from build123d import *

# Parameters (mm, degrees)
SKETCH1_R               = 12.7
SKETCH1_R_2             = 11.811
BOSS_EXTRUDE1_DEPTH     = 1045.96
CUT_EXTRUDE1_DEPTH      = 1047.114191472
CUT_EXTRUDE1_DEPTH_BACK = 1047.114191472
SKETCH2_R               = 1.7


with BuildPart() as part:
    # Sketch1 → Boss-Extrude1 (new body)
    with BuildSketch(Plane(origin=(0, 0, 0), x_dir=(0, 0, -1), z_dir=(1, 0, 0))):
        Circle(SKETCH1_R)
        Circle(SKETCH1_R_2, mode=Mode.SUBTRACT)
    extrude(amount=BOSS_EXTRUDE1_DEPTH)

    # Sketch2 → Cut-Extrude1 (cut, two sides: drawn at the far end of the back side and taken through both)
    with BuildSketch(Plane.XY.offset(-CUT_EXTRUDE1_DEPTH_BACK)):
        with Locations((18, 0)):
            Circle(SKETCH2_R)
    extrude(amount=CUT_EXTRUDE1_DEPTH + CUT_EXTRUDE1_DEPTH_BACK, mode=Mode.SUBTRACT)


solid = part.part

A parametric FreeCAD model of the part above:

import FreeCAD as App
import Part
import Sketcher
from FreeCAD import Vector
Q = App.Units.Quantity

doc = App.newDocument("Part")
body = doc.addObject("PartDesign::Body", "Body")

sketch1 = body.newObject("Sketcher::SketchObject", "Sketch")
sketch1.AttachmentSupport = (doc.getObject("YZ_Plane"), [""])
sketch1.MapMode = "FlatFace"
sketch1.addGeometry([
    Part.Circle(Vector(0, 0, 0), Vector(0, 0, 1), 13),
    Part.Circle(Vector(0, 0, 0), Vector(0, 0, 1), 12),
], False)
sketch1.addConstraint([
    Sketcher.Constraint("Coincident", 0, 3, -1, 1),
    Sketcher.Constraint("Coincident", 1, 3, -1, 1),
    Sketcher.Constraint("Diameter", 0, Q("1 in")),
    Sketcher.Constraint("Diameter", 1, Q("0.93 in")),
])
pad1 = body.newObject("PartDesign::Pad", "Pad")
pad1.Profile = sketch1
pad1.Length = 1045.96

sketch2 = body.newObject("Sketcher::SketchObject", "Sketch001")
sketch2.AttachmentSupport = (doc.getObject("XY_Plane"), [""])
sketch2.MapMode = "FlatFace"
sketch2.addGeometry(Part.Circle(Vector(18, 0, 0), Vector(0, 0, 1), 1.7), False)
sketch2.addConstraint([
    Sketcher.Constraint("PointOnObject", 0, 3, -1),
    Sketcher.Constraint("Diameter", 0, 3.4),
    Sketcher.Constraint("DistanceX", -1, 1, 0, 3, 18.0),
])
pocket1 = body.newObject("PartDesign::Pocket", "Pocket")
pocket1.Profile = sketch2
pocket1.Type = "ThroughAll"
pocket1.Midplane = True

doc.recompute()
